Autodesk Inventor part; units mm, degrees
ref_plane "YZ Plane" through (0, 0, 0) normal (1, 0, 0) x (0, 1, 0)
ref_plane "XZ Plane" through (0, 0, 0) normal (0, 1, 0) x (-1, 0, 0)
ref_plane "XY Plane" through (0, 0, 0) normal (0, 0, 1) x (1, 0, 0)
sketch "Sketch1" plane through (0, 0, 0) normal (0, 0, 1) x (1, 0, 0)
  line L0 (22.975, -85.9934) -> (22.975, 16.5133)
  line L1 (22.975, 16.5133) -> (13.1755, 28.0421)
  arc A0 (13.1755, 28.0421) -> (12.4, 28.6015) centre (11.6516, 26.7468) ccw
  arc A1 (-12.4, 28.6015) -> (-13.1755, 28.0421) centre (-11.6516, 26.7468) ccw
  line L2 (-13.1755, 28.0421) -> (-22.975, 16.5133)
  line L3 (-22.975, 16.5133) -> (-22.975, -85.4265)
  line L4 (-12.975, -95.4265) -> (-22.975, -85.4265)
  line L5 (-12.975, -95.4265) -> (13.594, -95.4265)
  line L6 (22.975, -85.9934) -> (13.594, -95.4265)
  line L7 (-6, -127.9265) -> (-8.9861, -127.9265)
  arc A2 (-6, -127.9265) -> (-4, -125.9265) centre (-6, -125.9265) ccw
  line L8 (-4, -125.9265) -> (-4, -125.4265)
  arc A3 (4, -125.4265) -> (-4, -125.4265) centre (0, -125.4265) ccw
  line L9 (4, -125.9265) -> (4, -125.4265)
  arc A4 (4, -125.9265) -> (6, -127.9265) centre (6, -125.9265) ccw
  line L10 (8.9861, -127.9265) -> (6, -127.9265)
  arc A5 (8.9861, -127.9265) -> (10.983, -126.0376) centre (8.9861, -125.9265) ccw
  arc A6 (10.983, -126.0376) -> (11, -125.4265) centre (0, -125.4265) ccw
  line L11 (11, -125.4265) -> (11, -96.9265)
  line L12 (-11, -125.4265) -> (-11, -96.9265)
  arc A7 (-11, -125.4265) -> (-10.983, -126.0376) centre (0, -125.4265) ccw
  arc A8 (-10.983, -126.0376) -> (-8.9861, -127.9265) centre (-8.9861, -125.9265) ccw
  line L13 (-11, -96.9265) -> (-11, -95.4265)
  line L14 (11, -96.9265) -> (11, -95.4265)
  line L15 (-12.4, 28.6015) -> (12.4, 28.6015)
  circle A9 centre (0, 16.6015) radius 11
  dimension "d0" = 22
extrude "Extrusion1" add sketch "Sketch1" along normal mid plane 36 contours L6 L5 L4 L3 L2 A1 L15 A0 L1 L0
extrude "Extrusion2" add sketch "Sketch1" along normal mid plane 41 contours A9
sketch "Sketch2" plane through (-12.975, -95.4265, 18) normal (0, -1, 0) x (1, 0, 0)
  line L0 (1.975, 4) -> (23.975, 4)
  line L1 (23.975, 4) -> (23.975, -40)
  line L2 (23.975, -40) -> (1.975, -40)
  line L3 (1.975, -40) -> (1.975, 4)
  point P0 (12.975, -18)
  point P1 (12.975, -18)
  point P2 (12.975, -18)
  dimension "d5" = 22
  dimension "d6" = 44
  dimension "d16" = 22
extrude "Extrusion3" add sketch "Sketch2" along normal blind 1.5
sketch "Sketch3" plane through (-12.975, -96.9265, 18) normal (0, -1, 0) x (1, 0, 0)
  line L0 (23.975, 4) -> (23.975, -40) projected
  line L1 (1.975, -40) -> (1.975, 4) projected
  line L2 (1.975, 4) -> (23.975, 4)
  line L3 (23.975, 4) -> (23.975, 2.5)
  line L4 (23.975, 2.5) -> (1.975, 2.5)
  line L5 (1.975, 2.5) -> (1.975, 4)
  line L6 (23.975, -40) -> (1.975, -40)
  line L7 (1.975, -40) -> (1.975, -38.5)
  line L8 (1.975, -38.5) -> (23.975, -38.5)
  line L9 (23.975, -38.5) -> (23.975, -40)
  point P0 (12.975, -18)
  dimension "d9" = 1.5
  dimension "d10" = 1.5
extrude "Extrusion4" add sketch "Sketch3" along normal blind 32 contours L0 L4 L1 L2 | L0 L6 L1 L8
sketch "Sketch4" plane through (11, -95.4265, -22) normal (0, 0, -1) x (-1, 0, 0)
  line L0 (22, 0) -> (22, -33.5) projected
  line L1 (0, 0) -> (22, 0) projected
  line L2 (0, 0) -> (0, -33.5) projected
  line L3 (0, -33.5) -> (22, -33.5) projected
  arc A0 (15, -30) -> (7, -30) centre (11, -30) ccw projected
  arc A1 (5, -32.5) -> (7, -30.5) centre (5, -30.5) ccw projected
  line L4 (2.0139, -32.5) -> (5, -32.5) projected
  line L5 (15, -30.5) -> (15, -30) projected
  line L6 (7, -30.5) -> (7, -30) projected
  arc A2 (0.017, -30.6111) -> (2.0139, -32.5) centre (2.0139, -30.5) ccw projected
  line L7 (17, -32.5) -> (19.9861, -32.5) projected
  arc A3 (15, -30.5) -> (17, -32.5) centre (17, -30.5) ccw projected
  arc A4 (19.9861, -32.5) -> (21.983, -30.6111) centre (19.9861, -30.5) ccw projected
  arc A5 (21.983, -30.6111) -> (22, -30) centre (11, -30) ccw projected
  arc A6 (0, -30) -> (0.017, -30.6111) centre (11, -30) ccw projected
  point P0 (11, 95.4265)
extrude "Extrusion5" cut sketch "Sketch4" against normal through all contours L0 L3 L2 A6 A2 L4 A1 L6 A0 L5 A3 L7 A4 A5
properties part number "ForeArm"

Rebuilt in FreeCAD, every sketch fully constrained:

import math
import FreeCAD as App
import Part
import Sketcher
from FreeCAD import Vector
Q = App.Units.Quantity


def add_polygon(sketch, points):
    """Adds a closed chain of lines whose ends are joined by coincident constraints."""
    first, n = sketch.GeometryCount, len(points)
    for a, b in zip(points, points[1:] + points[:1]):
        sketch.addGeometry(Part.LineSegment(App.Vector(*a, 0), App.Vector(*b, 0)), False)
    for i in range(n):
        sketch.addConstraint(Sketcher.Constraint("Coincident", first + i, 2, first + (i + 1) % n, 1))

doc = App.newDocument("Part")
body = doc.addObject("PartDesign::Body", "Body")

# Sketch on XY plane
sketch1 = doc.addObject("Sketcher::SketchObject", "Sketch")
body.addObject(sketch1)
sketch1.AttachmentSupport = (doc.XY_Plane, [""])
sketch1.MapMode = "FlatFace"
sketch1.addGeometry(Part.LineSegment(Vector(13.594, -95.4265, 0), Vector(22.975, -85.9934, 0)), False)
sketch1.addGeometry(Part.LineSegment(Vector(22.975, -85.9934, 0), Vector(22.975, 16.5133, 0)), False)
sketch1.addGeometry(Part.LineSegment(Vector(22.975, 16.5133, 0), Vector(13.1755, 28.0421, 0)), False)
sketch1.addGeometry(Part.ArcOfCircle(Part.Circle(Vector(11.6516, 26.7468, 0), Vector(0, 0, 1), 2.000018), math.radians(40.364209), math.radians(68.025166)), False)
sketch1.addGeometry(Part.LineSegment(Vector(12.4, 28.6015, 0), Vector(-12.4, 28.6015, 0)), False)
sketch1.addGeometry(Part.ArcOfCircle(Part.Circle(Vector(-11.6516, 26.7468, 0), Vector(0, 0, 1), 2.000004), math.radians(111.974834), math.radians(139.635791)), False)
sketch1.addGeometry(Part.LineSegment(Vector(-13.1755, 28.0421, 0), Vector(-22.975, 16.5133, 0)), False)
sketch1.addGeometry(Part.LineSegment(Vector(-22.975, 16.5133, 0), Vector(-22.975, -85.4265, 0)), False)
sketch1.addGeometry(Part.LineSegment(Vector(-22.975, -85.4265, 0), Vector(-12.975, -95.4265, 0)), False)
sketch1.addGeometry(Part.LineSegment(Vector(-12.975, -95.4265, 0), Vector(13.594, -95.4265, 0)), False)
sketch1.addGeometry(Part.Circle(Vector(0, 16.6015, 0), Vector(0, 0, 1), 11), False)
sketch1.addConstraint(Sketcher.Constraint("Coincident", 0, 2, 1, 1))
sketch1.addConstraint(Sketcher.Constraint("Coincident", 1, 2, 2, 1))
sketch1.addConstraint(Sketcher.Constraint("Coincident", 2, 2, 3, 1))
sketch1.addConstraint(Sketcher.Constraint("Coincident", 3, 2, 4, 1))
sketch1.addConstraint(Sketcher.Constraint("Coincident", 4, 2, 5, 1))
sketch1.addConstraint(Sketcher.Constraint("Coincident", 5, 2, 6, 1))
sketch1.addConstraint(Sketcher.Constraint("Coincident", 6, 2, 7, 1))
sketch1.addConstraint(Sketcher.Constraint("Coincident", 7, 2, 8, 1))
sketch1.addConstraint(Sketcher.Constraint("Coincident", 8, 2, 9, 1))
sketch1.addConstraint(Sketcher.Constraint("Coincident", 9, 2, 0, 1))
sketch1.addConstraint(Sketcher.Constraint("Vertical", 1))
sketch1.addConstraint(Sketcher.Constraint("Horizontal", 4))
sketch1.addConstraint(Sketcher.Constraint("Vertical", 7))
sketch1.addConstraint(Sketcher.Constraint("Horizontal", 9))
sketch1.addConstraint(Sketcher.Constraint("PointOnObject", 10, 3, -2))
sketch1.addConstraint(Sketcher.Constraint("Diameter", 10, Q("22 mm")))
sketch1.addConstraint(Sketcher.Constraint("Radius", 3, Q("2 mm")))
sketch1.addConstraint(Sketcher.Constraint("Radius", 5, Q("2 mm")))
sketch1.addConstraint(Sketcher.Constraint("DistanceX", 4, 2, 4, 1, Q("24.8 mm")))
sketch1.addConstraint(Sketcher.Constraint("DistanceY", 10, 3, 3, 2, Q("12 mm")))
sketch1.addConstraint(Sketcher.Constraint("DistanceX", 7, 2, 8, 2, Q("10 mm")))
sketch1.addConstraint(Sketcher.Constraint("DistanceY", 8, 2, 7, 2, Q("10 mm")))
sketch1.addConstraint(Sketcher.Constraint("DistanceX", -1, 1, 3, 2, Q("12.4 mm")))
sketch1.addConstraint(Sketcher.Constraint("DistanceX", 9, 1, 9, 2, Q("26.569 mm")))
sketch1.addConstraint(Sketcher.Constraint("DistanceX", 7, 2, 0, 2, Q("45.95 mm")))
sketch1.addConstraint(Sketcher.Constraint("DistanceY", 1, 1, 1, 2, Q("102.5067 mm")))
sketch1.addConstraint(Sketcher.Constraint("DistanceY", 7, 2, 7, 1, Q("101.9398 mm")))
sketch1.addConstraint(Sketcher.Constraint("DistanceX", -1, 1, 0, 2, Q("22.975 mm")))
sketch1.addConstraint(Sketcher.Constraint("DistanceY", -1, 1, 2, 2, Q("28.042 mm")))
sketch1.addConstraint(Sketcher.Constraint("DistanceY", -1, 1, 5, 2, Q("28.042 mm")))
sketch1.addConstraint(Sketcher.Constraint("DistanceY", 0, 2, 10, 3, Q("102.595 mm")))
sketch1.addConstraint(Sketcher.Constraint("DistanceX", 3, 3, 2, 2, Q("1.524 mm")))
sketch1.addConstraint(Sketcher.Constraint("DistanceX", 5, 3, 2, 2, Q("24.827 mm")))
sketch1.addConstraint(Sketcher.Constraint("DistanceX", 5, 2, 5, 3, Q("1.524 mm")))
sketch1.addConstraint(Sketcher.Constraint("DistanceY", 0, 2, 7, 2, Q("0.567 mm")))
pad1 = doc.addObject("PartDesign::Pad", "Pad")
body.addObject(pad1)
pad1.Profile = sketch1
pad1.Length = 36
pad1.Midplane = True

# Sketch on XY plane
sketch2 = doc.addObject("Sketcher::SketchObject", "Sketch001")
body.addObject(sketch2)
sketch2.AttachmentSupport = (doc.XY_Plane, [""])
sketch2.MapMode = "FlatFace"
sketch2.addGeometry(Part.Circle(Vector(0, 17, 0), Vector(0, 0, 1), 11), False)
sketch2.addConstraint(Sketcher.Constraint("PointOnObject", 0, 3, -2))
sketch2.addConstraint(Sketcher.Constraint("Diameter", 0, Q("22 mm")))
sketch2.addConstraint(Sketcher.Constraint("DistanceY", -1, 1, 0, 3, Q("16.6015 mm")))
pad2 = doc.addObject("PartDesign::Pad", "Pad001")
body.addObject(pad2)
pad2.Profile = sketch2
pad2.Length = 41
pad2.Midplane = True

# Sketch on XZ plane
sketch3 = doc.addObject("Sketcher::SketchObject", "Sketch002")
body.addObject(sketch3)
sketch3.AttachmentSupport = (doc.XZ_Plane, [""])
sketch3.MapMode = "FlatFace"
sketch3.AttachmentOffset = App.Placement(Vector(0, 0, 95.4265), App.Rotation())
add_polygon(sketch3, [(11, 22), (-11, 22), (-11, -22), (11, -22)])  # lines 0-3
sketch3.addConstraint(Sketcher.Constraint("Horizontal", 0))
sketch3.addConstraint(Sketcher.Constraint("Vertical", 1))
sketch3.addConstraint(Sketcher.Constraint("Horizontal", 2))
sketch3.addConstraint(Sketcher.Constraint("Vertical", 3))
sketch3.addConstraint(Sketcher.Constraint("Symmetric", 0, 2, 2, 2, -1, 1))
sketch3.addConstraint(Sketcher.Constraint("DistanceX", 0, 2, 0, 1, Q("22 mm")))
sketch3.addConstraint(Sketcher.Constraint("DistanceY", 1, 2, 1, 1, Q("44 mm")))
pad3 = doc.addObject("PartDesign::Pad", "Pad002")
body.addObject(pad3)
pad3.Profile = sketch3
pad3.Length = 1.5

# Sketch on XZ plane
sketch4 = doc.addObject("Sketcher::SketchObject", "Sketch003")
body.addObject(sketch4)
sketch4.AttachmentSupport = (doc.XZ_Plane, [""])
sketch4.MapMode = "FlatFace"
sketch4.AttachmentOffset = App.Placement(Vector(0, 0, 96.9265), App.Rotation())
add_polygon(sketch4, [(11, 20.5), (11, 22), (-11, 22), (-11, 20.5)])  # lines 0-3
add_polygon(sketch4, [(11, -22), (11, -20.5), (-11, -20.5), (-11, -22)])  # lines 4-7
sketch4.addConstraint(Sketcher.Constraint("Vertical", 0))
sketch4.addConstraint(Sketcher.Constraint("Horizontal", 1))
sketch4.addConstraint(Sketcher.Constraint("Vertical", 2))
sketch4.addConstraint(Sketcher.Constraint("Horizontal", 3))
sketch4.addConstraint(Sketcher.Constraint("Vertical", 4))
sketch4.addConstraint(Sketcher.Constraint("Horizontal", 5))
sketch4.addConstraint(Sketcher.Constraint("Vertical", 6))
sketch4.addConstraint(Sketcher.Constraint("Horizontal", 7))
sketch4.addConstraint(Sketcher.Constraint("Symmetric", 2, 2, 4, 2, -1, 1))
sketch4.addConstraint(Sketcher.Constraint("Symmetric", 0, 2, 6, 2, -1, 1))
sketch4.addConstraint(Sketcher.Constraint("Vertical", 3, 2, 4, 2))
sketch4.addConstraint(Sketcher.Constraint("DistanceY", 0, 1, 0, 2, Q("1.5 mm")))
sketch4.addConstraint(Sketcher.Constraint("DistanceX", 1, 2, 1, 1, Q("22 mm")))
sketch4.addConstraint(Sketcher.Constraint("DistanceY", -1, 1, 0, 2, Q("22 mm")))
pad4 = doc.addObject("PartDesign::Pad", "Pad003")
body.addObject(pad4)
pad4.Profile = sketch4
pad4.Length = 32

# Sketch on XY plane
sketch5 = doc.addObject("Sketcher::SketchObject", "Sketch004")
body.addObject(sketch5)
sketch5.AttachmentSupport = (doc.XY_Plane, [""])
sketch5.MapMode = "FlatFace"
sketch5.AttachmentOffset = App.Placement(Vector(0, 0, -22), App.Rotation())
sketch5.addGeometry(Part.LineSegment(Vector(-11, -128.9265, 0), Vector(-11, -125.4265, 0)), False)
sketch5.addGeometry(Part.ArcOfCircle(Part.Circle(Vector(0.015771, -125.425842, 0), Vector(0, 0, 1), 11.015771), math.radians(-179.996578), math.radians(-176.816457)), False)
sketch5.addGeometry(Part.ArcOfCircle(Part.Circle(Vector(-8.9861, -125.9265, 0), Vector(0, 0, 1), 2), math.radians(-176.815561), math.radians(-90)), False)
sketch5.addGeometry(Part.LineSegment(Vector(-8.9861, -127.9265, 0), Vector(-6, -127.9265, 0)), False)
sketch5.addGeometry(Part.ArcOfCircle(Part.Circle(Vector(-6, -125.9265, 0), Vector(0, 0, 1), 2), math.radians(-90), math.radians(0)), False)
sketch5.addGeometry(Part.LineSegment(Vector(-4, -125.9265, 0), Vector(-4, -125.4265, 0)), False)
sketch5.addGeometry(Part.ArcOfCircle(Part.Circle(Vector(0, -125.4265, 0), Vector(0, 0, 1), 4), math.radians(0), math.radians(180)), False)
sketch5.addGeometry(Part.LineSegment(Vector(4, -125.4265, 0), Vector(4, -125.9265, 0)), False)
sketch5.addGeometry(Part.ArcOfCircle(Part.Circle(Vector(6, -125.9265, 0), Vector(0, 0, 1), 2), math.radians(180), math.radians(270)), False)
sketch5.addGeometry(Part.LineSegment(Vector(6, -127.9265, 0), Vector(8.9861, -127.9265, 0)), False)
sketch5.addGeometry(Part.ArcOfCircle(Part.Circle(Vector(8.9861, -125.9265, 0), Vector(0, 0, 1), 1.999988), math.radians(-90), math.radians(-3.184439)), False)
sketch5.addGeometry(Part.ArcOfCircle(Part.Circle(Vector(0.015738, -125.426719, 0), Vector(0, 0, 1), 10.984262), math.radians(-3.188106), math.radians(0.001141)), False)
sketch5.addGeometry(Part.LineSegment(Vector(11, -125.4265, 0), Vector(11, -128.9265, 0)), False)
sketch5.addGeometry(Part.LineSegment(Vector(11, -128.9265, 0), Vector(-11, -128.9265, 0)), False)
sketch5.addConstraint(Sketcher.Constraint("Coincident", 0, 2, 1, 1))
sketch5.addConstraint(Sketcher.Constraint("Coincident", 1, 2, 2, 1))
sketch5.addConstraint(Sketcher.Constraint("Coincident", 2, 2, 3, 1))
sketch5.addConstraint(Sketcher.Constraint("Coincident", 3, 2, 4, 1))
sketch5.addConstraint(Sketcher.Constraint("Coincident", 4, 2, 5, 1))
sketch5.addConstraint(Sketcher.Constraint("Coincident", 5, 2, 6, 2))
sketch5.addConstraint(Sketcher.Constraint("Coincident", 6, 1, 7, 1))
sketch5.addConstraint(Sketcher.Constraint("Coincident", 7, 2, 8, 1))
sketch5.addConstraint(Sketcher.Constraint("Coincident", 8, 2, 9, 1))
sketch5.addConstraint(Sketcher.Constraint("Coincident", 9, 2, 10, 1))
sketch5.addConstraint(Sketcher.Constraint("Coincident", 10, 2, 11, 1))
sketch5.addConstraint(Sketcher.Constraint("Coincident", 11, 2, 12, 1))
sketch5.addConstraint(Sketcher.Constraint("Coincident", 12, 2, 13, 1))
sketch5.addConstraint(Sketcher.Constraint("Coincident", 13, 2, 0, 1))
sketch5.addConstraint(Sketcher.Constraint("Vertical", 0))
sketch5.addConstraint(Sketcher.Constraint("Horizontal", 3))
sketch5.addConstraint(Sketcher.Constraint("Vertical", 5))
sketch5.addConstraint(Sketcher.Constraint("Vertical", 7))
sketch5.addConstraint(Sketcher.Constraint("Horizontal", 9))
sketch5.addConstraint(Sketcher.Constraint("Vertical", 12))
sketch5.addConstraint(Sketcher.Constraint("Horizontal", 13))
sketch5.addConstraint(Sketcher.Constraint("PointOnObject", 6, 3, -2))
sketch5.addConstraint(Sketcher.Constraint("Radius", 2, Q("2 mm")))
sketch5.addConstraint(Sketcher.Constraint("Radius", 4, Q("2 mm")))
sketch5.addConstraint(Sketcher.Constraint("Radius", 6, Q("4 mm")))
sketch5.addConstraint(Sketcher.Constraint("Radius", 8, Q("2 mm")))
sketch5.addConstraint(Sketcher.Constraint("Radius", 10, Q("2 mm")))
sketch5.addConstraint(Sketcher.Constraint("DistanceX", 13, 2, 13, 1, Q("22 mm")))
sketch5.addConstraint(Sketcher.Constraint("DistanceY", 0, 1, 0, 2, Q("3.5 mm")))
sketch5.addConstraint(Sketcher.Constraint("DistanceY", 5, 1, 5, 2, Q("0.5 mm")))
sketch5.addConstraint(Sketcher.Constraint("DistanceY", 7, 2, 7, 1, Q("0.5 mm")))
sketch5.addConstraint(Sketcher.Constraint("DistanceY", 12, 2, 12, 1, Q("3.5 mm")))
sketch5.addConstraint(Sketcher.Constraint("DistanceX", 0, 2, -1, 1, Q("11 mm")))
sketch5.addConstraint(Sketcher.Constraint("DistanceX", 3, 2, -1, 1, Q("6 mm")))
sketch5.addConstraint(Sketcher.Constraint("DistanceX", -1, 1, 8, 2, Q("6 mm")))
sketch5.addConstraint(Sketcher.Constraint("DistanceY", 3, 2, 4, 2, Q("2 mm")))
sketch5.addConstraint(Sketcher.Constraint("DistanceY", 8, 2, 7, 2, Q("2 mm")))
sketch5.addConstraint(Sketcher.Constraint("DistanceY", 12, 2, 9, 2, Q("1 mm")))
sketch5.addConstraint(Sketcher.Constraint("DistanceY", 13, 2, 2, 2, Q("1 mm")))
sketch5.addConstraint(Sketcher.Constraint("Radius", 1, Q("11.0158 mm")))
sketch5.addConstraint(Sketcher.Constraint("Radius", 11, Q("10.9843 mm")))
sketch5.addConstraint(Sketcher.Constraint("DistanceY", 4, 3, 6, 3, Q("0.5 mm")))
sketch5.addConstraint(Sketcher.Constraint("DistanceX", 3, 1, 3, 2, Q("2.986 mm")))
sketch5.addConstraint(Sketcher.Constraint("DistanceX", 9, 1, 9, 2, Q("2.986 mm")))
sketch5.addConstraint(Sketcher.Constraint("DistanceX", 2, 3, -1, 1, Q("8.986 mm")))
sketch5.addConstraint(Sketcher.Constraint("DistanceX", -1, 1, 10, 3, Q("8.986 mm")))
sketch5.addConstraint(Sketcher.Constraint("DistanceX", 1, 2, -1, 1, Q("10.983 mm")))
sketch5.addConstraint(Sketcher.Constraint("DistanceX", -1, 1, 10, 2, Q("10.983 mm")))
sketch5.addConstraint(Sketcher.Constraint("DistanceY", 1, 3, -1, 1, Q("125.4258 mm")))
pocket1 = doc.addObject("PartDesign::Pocket", "Pocket")
body.addObject(pocket1)
pocket1.Profile = sketch5
pocket1.Type = "ThroughAll"
pocket1.Reversed = True

doc.recompute()
